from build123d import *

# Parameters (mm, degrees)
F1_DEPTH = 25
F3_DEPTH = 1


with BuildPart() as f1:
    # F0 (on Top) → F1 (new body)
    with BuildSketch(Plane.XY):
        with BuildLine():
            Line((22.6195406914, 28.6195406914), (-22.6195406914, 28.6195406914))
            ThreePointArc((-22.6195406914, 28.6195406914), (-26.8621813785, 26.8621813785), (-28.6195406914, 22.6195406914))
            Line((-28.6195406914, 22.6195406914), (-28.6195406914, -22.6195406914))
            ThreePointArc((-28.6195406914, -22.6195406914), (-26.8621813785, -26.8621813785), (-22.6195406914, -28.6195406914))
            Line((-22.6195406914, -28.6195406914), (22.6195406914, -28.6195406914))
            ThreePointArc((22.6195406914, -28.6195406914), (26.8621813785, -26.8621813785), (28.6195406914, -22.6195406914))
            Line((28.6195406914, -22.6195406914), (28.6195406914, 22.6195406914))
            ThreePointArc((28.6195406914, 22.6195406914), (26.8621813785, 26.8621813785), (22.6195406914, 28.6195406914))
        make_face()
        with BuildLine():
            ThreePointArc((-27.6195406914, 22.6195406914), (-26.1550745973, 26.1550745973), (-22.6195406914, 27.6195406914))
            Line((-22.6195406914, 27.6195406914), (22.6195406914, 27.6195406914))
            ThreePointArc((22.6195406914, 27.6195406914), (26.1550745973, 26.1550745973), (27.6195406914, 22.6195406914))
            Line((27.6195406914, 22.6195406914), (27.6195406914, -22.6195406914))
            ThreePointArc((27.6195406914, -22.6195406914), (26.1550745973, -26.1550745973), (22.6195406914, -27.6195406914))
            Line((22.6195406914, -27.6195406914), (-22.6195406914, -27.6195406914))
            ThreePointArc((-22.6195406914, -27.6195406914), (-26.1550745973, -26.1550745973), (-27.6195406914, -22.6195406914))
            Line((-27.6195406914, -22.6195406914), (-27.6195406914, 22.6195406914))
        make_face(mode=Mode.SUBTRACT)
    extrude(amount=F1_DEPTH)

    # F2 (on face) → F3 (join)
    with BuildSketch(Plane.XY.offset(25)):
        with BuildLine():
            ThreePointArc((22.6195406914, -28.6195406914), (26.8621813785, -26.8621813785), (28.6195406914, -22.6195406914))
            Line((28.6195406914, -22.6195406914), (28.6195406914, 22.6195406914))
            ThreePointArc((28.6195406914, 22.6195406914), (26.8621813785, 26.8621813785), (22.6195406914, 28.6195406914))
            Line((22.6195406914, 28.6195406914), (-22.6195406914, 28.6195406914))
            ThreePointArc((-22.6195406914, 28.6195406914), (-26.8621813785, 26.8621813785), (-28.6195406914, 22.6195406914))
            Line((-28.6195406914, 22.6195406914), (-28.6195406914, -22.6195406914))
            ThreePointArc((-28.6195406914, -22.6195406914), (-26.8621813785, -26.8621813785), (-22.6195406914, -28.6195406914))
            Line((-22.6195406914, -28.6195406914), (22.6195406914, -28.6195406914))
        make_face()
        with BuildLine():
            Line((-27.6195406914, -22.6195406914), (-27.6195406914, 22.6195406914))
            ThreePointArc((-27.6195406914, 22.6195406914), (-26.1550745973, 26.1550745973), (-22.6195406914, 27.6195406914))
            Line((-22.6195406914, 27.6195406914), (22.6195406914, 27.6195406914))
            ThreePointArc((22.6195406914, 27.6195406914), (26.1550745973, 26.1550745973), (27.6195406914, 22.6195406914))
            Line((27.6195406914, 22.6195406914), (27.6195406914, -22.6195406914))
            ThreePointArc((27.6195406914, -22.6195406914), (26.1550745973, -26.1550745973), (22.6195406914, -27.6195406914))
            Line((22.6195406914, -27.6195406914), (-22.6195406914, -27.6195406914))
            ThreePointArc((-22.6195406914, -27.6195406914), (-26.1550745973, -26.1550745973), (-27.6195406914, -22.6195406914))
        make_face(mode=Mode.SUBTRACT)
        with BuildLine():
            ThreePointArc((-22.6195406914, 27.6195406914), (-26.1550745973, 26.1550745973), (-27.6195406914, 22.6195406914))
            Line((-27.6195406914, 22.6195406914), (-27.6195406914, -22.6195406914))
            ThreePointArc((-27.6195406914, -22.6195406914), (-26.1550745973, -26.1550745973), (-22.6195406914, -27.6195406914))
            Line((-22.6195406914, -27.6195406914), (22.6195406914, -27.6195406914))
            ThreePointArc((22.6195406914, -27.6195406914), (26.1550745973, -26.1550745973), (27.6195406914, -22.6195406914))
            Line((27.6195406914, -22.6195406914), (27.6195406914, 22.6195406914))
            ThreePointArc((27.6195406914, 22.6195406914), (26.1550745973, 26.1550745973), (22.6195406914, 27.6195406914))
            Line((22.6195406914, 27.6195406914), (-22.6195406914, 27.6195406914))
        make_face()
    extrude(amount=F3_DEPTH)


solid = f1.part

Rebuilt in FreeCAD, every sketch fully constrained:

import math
import FreeCAD as App
import Part
import Sketcher
from FreeCAD import Vector
Q = App.Units.Quantity

doc = App.newDocument("Part")
body = doc.addObject("PartDesign::Body", "Body")

# Sketch on XY plane
sketch1 = body.newObject("Sketcher::SketchObject", "Sketch")
sketch1.AttachmentSupport = (doc.getObject("XY_Plane"), [""])
sketch1.MapMode = "FlatFace"
sketch1.addGeometry(Part.LineSegment(Vector(22.619541, 28.619541, 0), Vector(-22.619541, 28.619541, 0)), False)
sketch1.addGeometry(Part.ArcOfCircle(Part.Circle(Vector(-22.619541, 22.619541, 0), Vector(0, 0, 1), 6), math.radians(90), math.radians(180)), False)
sketch1.addGeometry(Part.LineSegment(Vector(-28.619541, 22.619541, 0), Vector(-28.619541, -22.619541, 0)), False)
sketch1.addGeometry(Part.ArcOfCircle(Part.Circle(Vector(-22.619541, -22.619541, 0), Vector(0, 0, 1), 6), math.radians(180), math.radians(270)), False)
sketch1.addGeometry(Part.LineSegment(Vector(-22.619541, -28.619541, 0), Vector(22.619541, -28.619541, 0)), False)
sketch1.addGeometry(Part.ArcOfCircle(Part.Circle(Vector(22.619541, -22.619541, 0), Vector(0, 0, 1), 6), math.radians(-90), math.radians(0)), False)
sketch1.addGeometry(Part.LineSegment(Vector(28.619541, -22.619541, 0), Vector(28.619541, 22.619541, 0)), False)
sketch1.addGeometry(Part.ArcOfCircle(Part.Circle(Vector(22.619541, 22.619541, 0), Vector(0, 0, 1), 6), math.radians(0), math.radians(90)), False)
sketch1.addGeometry(Part.LineSegment(Vector(-27.619541, -22.619541, 0), Vector(-27.619541, 22.619541, 0)), False)
sketch1.addGeometry(Part.ArcOfCircle(Part.Circle(Vector(-22.619541, 22.619541, 0), Vector(0, 0, 1), 5), math.radians(90), math.radians(180)), False)
sketch1.addGeometry(Part.LineSegment(Vector(-22.619541, 27.619541, 0), Vector(22.619541, 27.619541, 0)), False)
sketch1.addGeometry(Part.ArcOfCircle(Part.Circle(Vector(22.619541, 22.619541, 0), Vector(0, 0, 1), 5), math.radians(0), math.radians(90)), False)
sketch1.addGeometry(Part.LineSegment(Vector(27.619541, 22.619541, 0), Vector(27.619541, -22.619541, 0)), False)
sketch1.addGeometry(Part.ArcOfCircle(Part.Circle(Vector(22.619541, -22.619541, 0), Vector(0, 0, 1), 5), math.radians(-90), math.radians(0)), False)
sketch1.addGeometry(Part.LineSegment(Vector(22.619541, -27.619541, 0), Vector(-22.619541, -27.619541, 0)), False)
sketch1.addGeometry(Part.ArcOfCircle(Part.Circle(Vector(-22.619541, -22.619541, 0), Vector(0, 0, 1), 5), math.radians(180), math.radians(270)), False)
sketch1.addConstraint(Sketcher.Constraint("Tangent", 0, 2, 1, 1))
sketch1.addConstraint(Sketcher.Constraint("Tangent", 1, 2, 2, 1))
sketch1.addConstraint(Sketcher.Constraint("Tangent", 2, 2, 3, 1))
sketch1.addConstraint(Sketcher.Constraint("Tangent", 3, 2, 4, 1))
sketch1.addConstraint(Sketcher.Constraint("Tangent", 4, 2, 5, 1))
sketch1.addConstraint(Sketcher.Constraint("Tangent", 5, 2, 6, 1))
sketch1.addConstraint(Sketcher.Constraint("Tangent", 6, 2, 7, 1))
sketch1.addConstraint(Sketcher.Constraint("Tangent", 7, 2, 0, 1))
sketch1.addConstraint(Sketcher.Constraint("Tangent", 8, 2, 9, 2))
sketch1.addConstraint(Sketcher.Constraint("Tangent", 9, 1, 10, 1))
sketch1.addConstraint(Sketcher.Constraint("Tangent", 10, 2, 11, 2))
sketch1.addConstraint(Sketcher.Constraint("Tangent", 11, 1, 12, 1))
sketch1.addConstraint(Sketcher.Constraint("Tangent", 12, 2, 13, 2))
sketch1.addConstraint(Sketcher.Constraint("Tangent", 13, 1, 14, 1))
sketch1.addConstraint(Sketcher.Constraint("Tangent", 14, 2, 15, 2))
sketch1.addConstraint(Sketcher.Constraint("Tangent", 15, 1, 8, 1))
sketch1.addConstraint(Sketcher.Constraint("Horizontal", 0))
sketch1.addConstraint(Sketcher.Constraint("Vertical", 2))
sketch1.addConstraint(Sketcher.Constraint("Horizontal", 4))
sketch1.addConstraint(Sketcher.Constraint("Vertical", 6))
sketch1.addConstraint(Sketcher.Constraint("Vertical", 8))
sketch1.addConstraint(Sketcher.Constraint("Horizontal", 10))
sketch1.addConstraint(Sketcher.Constraint("Vertical", 12))
sketch1.addConstraint(Sketcher.Constraint("Horizontal", 14))
sketch1.addConstraint(Sketcher.Constraint("Coincident", 9, 3, 1, 3))
sketch1.addConstraint(Sketcher.Constraint("Coincident", 11, 3, 7, 3))
sketch1.addConstraint(Sketcher.Constraint("Coincident", 13, 3, 5, 3))
sketch1.addConstraint(Sketcher.Constraint("Equal", 1, 3))
sketch1.addConstraint(Sketcher.Constraint("Equal", 3, 5))
sketch1.addConstraint(Sketcher.Constraint("Equal", 5, 7))
sketch1.addConstraint(Sketcher.Constraint("Equal", 13, 15))
sketch1.addConstraint(Sketcher.Constraint("Symmetric", 1, 3, 5, 3, -1, 1))
sketch1.addConstraint(Sketcher.Constraint("Equal", 14, 2))
sketch1.addConstraint(Sketcher.Constraint("Radius", 1, Q("6 mm")))
sketch1.addConstraint(Sketcher.Constraint("Radius", 9, Q("5 mm")))
sketch1.addConstraint(Sketcher.Constraint("DistanceX", 0, 2, 0, 1, Q("45.239081 mm")))
pad1 = body.newObject("PartDesign::Pad", "Pad")
pad1.Profile = sketch1
pad1.Length = 25

# Sketch on XY plane
sketch2 = body.newObject("Sketcher::SketchObject", "Sketch001")
sketch2.AttachmentSupport = (doc.getObject("XY_Plane"), [""])
sketch2.MapMode = "FlatFace"
sketch2.AttachmentOffset = App.Placement(Vector(0, 0, 25), App.Rotation())
sketch2.addGeometry(Part.ArcOfCircle(Part.Circle(Vector(22.619541, -22.619541, 0), Vector(0, 0, 1), 6), math.radians(-90), math.radians(0)), False)
sketch2.addGeometry(Part.LineSegment(Vector(28.619541, -22.619541, 0), Vector(28.619541, 22.619541, 0)), False)
sketch2.addGeometry(Part.ArcOfCircle(Part.Circle(Vector(22.619541, 22.619541, 0), Vector(0, 0, 1), 6), math.radians(0), math.radians(90)), False)
sketch2.addGeometry(Part.LineSegment(Vector(22.619541, 28.619541, 0), Vector(-22.619541, 28.619541, 0)), False)
sketch2.addGeometry(Part.ArcOfCircle(Part.Circle(Vector(-22.619541, 22.619541, 0), Vector(0, 0, 1), 6), math.radians(90), math.radians(180)), False)
sketch2.addGeometry(Part.LineSegment(Vector(-28.619541, 22.619541, 0), Vector(-28.619541, -22.619541, 0)), False)
sketch2.addGeometry(Part.ArcOfCircle(Part.Circle(Vector(-22.619541, -22.619541, 0), Vector(0, 0, 1), 6), math.radians(180), math.radians(270)), False)
sketch2.addGeometry(Part.LineSegment(Vector(-22.619541, -28.619541, 0), Vector(22.619541, -28.619541, 0)), False)
sketch2.addConstraint(Sketcher.Constraint("Tangent", 0, 2, 1, 1))
sketch2.addConstraint(Sketcher.Constraint("Tangent", 1, 2, 2, 1))
sketch2.addConstraint(Sketcher.Constraint("Tangent", 2, 2, 3, 1))
sketch2.addConstraint(Sketcher.Constraint("Tangent", 3, 2, 4, 1))
sketch2.addConstraint(Sketcher.Constraint("Tangent", 4, 2, 5, 1))
sketch2.addConstraint(Sketcher.Constraint("Tangent", 5, 2, 6, 1))
sketch2.addConstraint(Sketcher.Constraint("Tangent", 6, 2, 7, 1))
sketch2.addConstraint(Sketcher.Constraint("Tangent", 7, 2, 0, 1))
sketch2.addConstraint(Sketcher.Constraint("Vertical", 1))
sketch2.addConstraint(Sketcher.Constraint("Horizontal", 3))
sketch2.addConstraint(Sketcher.Constraint("Vertical", 5))
sketch2.addConstraint(Sketcher.Constraint("Horizontal", 7))
sketch2.addConstraint(Sketcher.Constraint("Equal", 0, 2))
sketch2.addConstraint(Sketcher.Constraint("Equal", 2, 4))
sketch2.addConstraint(Sketcher.Constraint("Equal", 4, 6))
sketch2.addConstraint(Sketcher.Constraint("Symmetric", 0, 3, 4, 3, -1, 1))
sketch2.addConstraint(Sketcher.Constraint("Equal", 7, 1))
sketch2.addConstraint(Sketcher.Constraint("Radius", 0, Q("6 mm")))
sketch2.addConstraint(Sketcher.Constraint("DistanceX", 3, 2, 3, 1, Q("45.239081 mm")))
pad2 = body.newObject("PartDesign::Pad", "Pad001")
pad2.Profile = sketch2
pad2.Length = 1

doc.recompute()
